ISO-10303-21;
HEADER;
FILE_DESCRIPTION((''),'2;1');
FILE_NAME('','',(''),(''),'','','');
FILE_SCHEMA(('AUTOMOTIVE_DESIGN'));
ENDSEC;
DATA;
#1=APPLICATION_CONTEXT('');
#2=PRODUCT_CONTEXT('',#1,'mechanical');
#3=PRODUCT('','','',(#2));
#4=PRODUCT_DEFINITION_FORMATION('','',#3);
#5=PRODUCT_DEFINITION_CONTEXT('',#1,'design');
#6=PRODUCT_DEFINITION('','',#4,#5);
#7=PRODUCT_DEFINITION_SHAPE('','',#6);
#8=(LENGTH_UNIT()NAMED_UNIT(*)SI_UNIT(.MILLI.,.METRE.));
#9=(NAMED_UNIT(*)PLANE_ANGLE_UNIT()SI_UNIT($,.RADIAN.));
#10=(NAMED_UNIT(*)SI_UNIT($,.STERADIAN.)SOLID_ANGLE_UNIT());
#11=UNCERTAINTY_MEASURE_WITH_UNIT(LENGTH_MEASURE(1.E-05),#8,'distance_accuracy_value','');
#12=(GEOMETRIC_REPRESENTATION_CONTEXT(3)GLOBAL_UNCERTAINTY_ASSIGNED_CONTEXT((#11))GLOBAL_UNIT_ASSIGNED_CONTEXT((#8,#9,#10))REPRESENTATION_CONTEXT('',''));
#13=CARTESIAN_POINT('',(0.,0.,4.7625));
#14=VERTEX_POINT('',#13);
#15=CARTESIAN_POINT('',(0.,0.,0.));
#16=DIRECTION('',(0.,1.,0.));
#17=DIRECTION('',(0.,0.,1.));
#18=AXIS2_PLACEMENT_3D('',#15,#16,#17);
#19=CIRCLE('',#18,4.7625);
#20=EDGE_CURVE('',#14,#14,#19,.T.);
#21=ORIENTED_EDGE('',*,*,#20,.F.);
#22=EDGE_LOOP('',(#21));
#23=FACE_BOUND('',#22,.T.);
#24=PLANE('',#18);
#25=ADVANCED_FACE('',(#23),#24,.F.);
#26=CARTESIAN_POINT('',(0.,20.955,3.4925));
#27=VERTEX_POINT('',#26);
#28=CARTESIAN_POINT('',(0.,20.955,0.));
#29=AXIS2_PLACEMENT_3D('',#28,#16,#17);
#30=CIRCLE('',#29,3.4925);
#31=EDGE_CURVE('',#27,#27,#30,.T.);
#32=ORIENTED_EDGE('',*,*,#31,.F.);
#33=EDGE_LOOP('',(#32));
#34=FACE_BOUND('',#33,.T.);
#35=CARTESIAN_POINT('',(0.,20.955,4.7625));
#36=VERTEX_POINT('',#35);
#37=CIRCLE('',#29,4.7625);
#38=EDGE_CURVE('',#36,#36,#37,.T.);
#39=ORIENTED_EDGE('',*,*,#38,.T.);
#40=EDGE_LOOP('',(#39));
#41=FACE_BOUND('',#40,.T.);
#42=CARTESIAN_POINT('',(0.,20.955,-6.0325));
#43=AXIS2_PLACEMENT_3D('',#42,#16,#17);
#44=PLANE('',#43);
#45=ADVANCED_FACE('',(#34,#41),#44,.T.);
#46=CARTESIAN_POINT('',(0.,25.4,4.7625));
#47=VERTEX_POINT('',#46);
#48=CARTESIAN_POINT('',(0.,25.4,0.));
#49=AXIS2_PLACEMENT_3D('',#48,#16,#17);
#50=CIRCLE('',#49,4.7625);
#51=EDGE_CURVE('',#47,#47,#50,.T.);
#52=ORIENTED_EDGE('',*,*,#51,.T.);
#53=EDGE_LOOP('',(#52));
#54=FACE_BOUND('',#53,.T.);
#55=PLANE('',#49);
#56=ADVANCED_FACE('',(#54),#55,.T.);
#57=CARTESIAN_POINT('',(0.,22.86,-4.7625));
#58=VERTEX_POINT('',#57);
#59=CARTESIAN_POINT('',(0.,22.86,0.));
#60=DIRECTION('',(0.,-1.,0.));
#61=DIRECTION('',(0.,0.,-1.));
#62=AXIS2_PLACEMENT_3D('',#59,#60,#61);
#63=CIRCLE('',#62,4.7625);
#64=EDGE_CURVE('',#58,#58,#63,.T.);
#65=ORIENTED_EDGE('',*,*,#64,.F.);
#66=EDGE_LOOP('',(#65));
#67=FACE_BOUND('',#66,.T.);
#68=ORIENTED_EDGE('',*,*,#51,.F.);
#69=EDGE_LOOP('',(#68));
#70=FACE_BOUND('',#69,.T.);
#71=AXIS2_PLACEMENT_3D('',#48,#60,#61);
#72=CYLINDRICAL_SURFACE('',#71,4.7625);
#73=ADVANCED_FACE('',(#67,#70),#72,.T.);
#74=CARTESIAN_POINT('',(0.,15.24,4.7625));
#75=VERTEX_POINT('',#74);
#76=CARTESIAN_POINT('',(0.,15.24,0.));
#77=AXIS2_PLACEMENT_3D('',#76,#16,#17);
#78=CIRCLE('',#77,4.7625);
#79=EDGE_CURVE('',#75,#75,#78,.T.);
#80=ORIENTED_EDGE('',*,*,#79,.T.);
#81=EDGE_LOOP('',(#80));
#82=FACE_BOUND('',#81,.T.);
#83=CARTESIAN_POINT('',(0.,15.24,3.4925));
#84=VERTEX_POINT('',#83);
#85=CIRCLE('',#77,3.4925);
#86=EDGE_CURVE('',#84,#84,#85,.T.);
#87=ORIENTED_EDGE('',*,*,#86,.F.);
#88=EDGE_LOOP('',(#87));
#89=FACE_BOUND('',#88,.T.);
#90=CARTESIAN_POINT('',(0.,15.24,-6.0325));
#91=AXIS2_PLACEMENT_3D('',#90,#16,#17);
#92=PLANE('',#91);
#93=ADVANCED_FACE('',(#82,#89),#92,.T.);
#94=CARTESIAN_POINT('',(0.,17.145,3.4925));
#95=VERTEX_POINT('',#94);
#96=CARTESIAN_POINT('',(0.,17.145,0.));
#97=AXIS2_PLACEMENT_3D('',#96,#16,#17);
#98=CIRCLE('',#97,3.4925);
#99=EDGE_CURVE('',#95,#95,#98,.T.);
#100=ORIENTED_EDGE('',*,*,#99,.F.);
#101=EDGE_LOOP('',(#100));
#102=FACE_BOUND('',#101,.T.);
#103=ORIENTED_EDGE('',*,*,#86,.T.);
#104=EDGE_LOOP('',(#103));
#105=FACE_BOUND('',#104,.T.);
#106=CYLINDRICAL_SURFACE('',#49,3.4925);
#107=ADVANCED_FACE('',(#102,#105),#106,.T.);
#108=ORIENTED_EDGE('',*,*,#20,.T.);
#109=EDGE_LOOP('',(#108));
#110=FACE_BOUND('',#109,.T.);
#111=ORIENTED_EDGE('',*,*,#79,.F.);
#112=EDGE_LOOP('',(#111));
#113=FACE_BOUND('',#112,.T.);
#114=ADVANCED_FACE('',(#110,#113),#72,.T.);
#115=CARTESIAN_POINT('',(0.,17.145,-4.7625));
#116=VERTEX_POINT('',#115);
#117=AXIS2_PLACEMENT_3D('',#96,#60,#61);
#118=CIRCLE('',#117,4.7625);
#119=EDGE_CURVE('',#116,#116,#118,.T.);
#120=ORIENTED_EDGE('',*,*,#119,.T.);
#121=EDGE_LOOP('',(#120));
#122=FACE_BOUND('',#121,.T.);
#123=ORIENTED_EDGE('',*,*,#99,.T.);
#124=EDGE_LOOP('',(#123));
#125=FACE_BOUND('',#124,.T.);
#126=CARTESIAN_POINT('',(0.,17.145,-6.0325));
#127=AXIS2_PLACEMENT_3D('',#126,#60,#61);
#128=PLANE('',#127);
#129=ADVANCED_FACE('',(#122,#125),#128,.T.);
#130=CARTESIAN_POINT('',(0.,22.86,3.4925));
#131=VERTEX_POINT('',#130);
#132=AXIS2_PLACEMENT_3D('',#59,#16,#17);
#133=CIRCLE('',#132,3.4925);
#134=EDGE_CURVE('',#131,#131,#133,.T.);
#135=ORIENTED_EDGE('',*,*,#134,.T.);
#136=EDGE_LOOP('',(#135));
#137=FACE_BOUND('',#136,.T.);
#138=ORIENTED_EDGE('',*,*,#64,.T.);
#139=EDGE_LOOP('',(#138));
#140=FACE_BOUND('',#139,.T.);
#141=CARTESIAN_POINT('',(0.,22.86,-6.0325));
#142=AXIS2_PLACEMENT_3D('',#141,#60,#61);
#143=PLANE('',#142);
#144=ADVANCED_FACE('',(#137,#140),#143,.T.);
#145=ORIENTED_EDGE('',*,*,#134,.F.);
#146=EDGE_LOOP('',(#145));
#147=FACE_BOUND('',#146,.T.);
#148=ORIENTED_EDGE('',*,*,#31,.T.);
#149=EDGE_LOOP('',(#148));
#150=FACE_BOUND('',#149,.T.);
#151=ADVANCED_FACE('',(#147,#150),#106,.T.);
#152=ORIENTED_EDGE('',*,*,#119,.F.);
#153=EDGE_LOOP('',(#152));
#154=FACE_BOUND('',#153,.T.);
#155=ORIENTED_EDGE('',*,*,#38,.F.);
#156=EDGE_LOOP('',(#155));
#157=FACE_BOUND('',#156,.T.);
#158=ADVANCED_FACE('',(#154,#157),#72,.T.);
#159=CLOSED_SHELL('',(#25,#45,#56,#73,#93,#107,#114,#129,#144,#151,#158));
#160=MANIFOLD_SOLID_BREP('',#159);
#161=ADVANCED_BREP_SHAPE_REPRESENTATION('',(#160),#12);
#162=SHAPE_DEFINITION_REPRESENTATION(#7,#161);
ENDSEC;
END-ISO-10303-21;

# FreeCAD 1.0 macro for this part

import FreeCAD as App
import Part
import Sketcher

V = App.Vector
Q = App.Units.Quantity

doc = App.newDocument("Part")
body = doc.addObject("PartDesign::Body", "Body")

sketch1 = body.newObject("Sketcher::SketchObject", "Sketch")
sketch1.AttachmentSupport = (doc.getObject("XZ_Plane"), [""])
sketch1.MapMode = "FlatFace"
sketch1.addGeometry(Part.Circle(V(0, 0, 0), V(0, 0, 1), 4.8), False)
sketch1.addConstraint([
    Sketcher.Constraint("Coincident", 0, 3, -1, 1),
    Sketcher.Constraint("Diameter", 0, Q("0.375 in")),
])
pad1 = body.newObject("PartDesign::Pad", "Pad")
pad1.Profile = sketch1
pad1.Length = Q("1 in")
pad1.Reversed = True

sketch2 = body.newObject("Sketcher::SketchObject", "Sketch001")
sketch2.AttachmentSupport = (doc.getObject("YZ_Plane"), [""])
sketch2.MapMode = "FlatFace"
sketch2.addGeometry([
    Part.LineSegment(V(22.9, -3.5, 0), V(21, -3.5, 0)),
    Part.LineSegment(V(21, -3.5, 0), V(21, -6, 0)),
    Part.LineSegment(V(21, -6, 0), V(22.9, -6, 0)),
    Part.LineSegment(V(22.9, -6, 0), V(22.9, -3.5, 0)),
    Part.LineSegment(V(17.1, -3.5, 0), V(15.2, -3.5, 0)),
    Part.LineSegment(V(15.2, -3.5, 0), V(15.2, -6, 0)),
    Part.LineSegment(V(15.2, -6, 0), V(17.1, -6, 0)),
    Part.LineSegment(V(17.1, -6, 0), V(17.1, -3.5, 0)),
], False)
sketch2.addConstraint([
    Sketcher.Constraint("Coincident", 0, 2, 1, 1),
    Sketcher.Constraint("Coincident", 1, 2, 2, 1),
    Sketcher.Constraint("Coincident", 2, 2, 3, 1),
    Sketcher.Constraint("Coincident", 3, 2, 0, 1),
    Sketcher.Constraint("Coincident", 4, 2, 5, 1),
    Sketcher.Constraint("Coincident", 5, 2, 6, 1),
    Sketcher.Constraint("Coincident", 6, 2, 7, 1),
    Sketcher.Constraint("Coincident", 7, 2, 4, 1),
    Sketcher.Constraint("Horizontal", 0),
    Sketcher.Constraint("Vertical", 1),
    Sketcher.Constraint("Horizontal", 2),
    Sketcher.Constraint("Vertical", 3),
    Sketcher.Constraint("Horizontal", 4),
    Sketcher.Constraint("Vertical", 5),
    Sketcher.Constraint("Horizontal", 6),
    Sketcher.Constraint("Vertical", 7),
    Sketcher.Constraint("Horizontal", 3, 2, 4, 2),
    Sketcher.Constraint("Horizontal", 2, 2, 5, 2),
    Sketcher.Constraint("Equal", 2, 4),
    Sketcher.Constraint("DistanceY", 1, 2, 1, 1, Q("0.1 in")),
    Sketcher.Constraint("DistanceX", -1, 1, 2, 2, Q("0.9 in")),
    Sketcher.Constraint("DistanceX", -1, 1, 4, 2, Q("0.6 in")),
    Sketcher.Constraint("DistanceX", 0, 2, 0, 1, Q("0.075 in")),
    Sketcher.Constraint("DistanceY", 0, 2, -1, 1, Q("0.1375 in")),
])
groove = body.newObject("PartDesign::Groove", "Groove")
groove.Profile = sketch2
groove.ReferenceAxis = (sketch2, ["H_Axis"])
groove.Angle = 360

doc.recompute()
